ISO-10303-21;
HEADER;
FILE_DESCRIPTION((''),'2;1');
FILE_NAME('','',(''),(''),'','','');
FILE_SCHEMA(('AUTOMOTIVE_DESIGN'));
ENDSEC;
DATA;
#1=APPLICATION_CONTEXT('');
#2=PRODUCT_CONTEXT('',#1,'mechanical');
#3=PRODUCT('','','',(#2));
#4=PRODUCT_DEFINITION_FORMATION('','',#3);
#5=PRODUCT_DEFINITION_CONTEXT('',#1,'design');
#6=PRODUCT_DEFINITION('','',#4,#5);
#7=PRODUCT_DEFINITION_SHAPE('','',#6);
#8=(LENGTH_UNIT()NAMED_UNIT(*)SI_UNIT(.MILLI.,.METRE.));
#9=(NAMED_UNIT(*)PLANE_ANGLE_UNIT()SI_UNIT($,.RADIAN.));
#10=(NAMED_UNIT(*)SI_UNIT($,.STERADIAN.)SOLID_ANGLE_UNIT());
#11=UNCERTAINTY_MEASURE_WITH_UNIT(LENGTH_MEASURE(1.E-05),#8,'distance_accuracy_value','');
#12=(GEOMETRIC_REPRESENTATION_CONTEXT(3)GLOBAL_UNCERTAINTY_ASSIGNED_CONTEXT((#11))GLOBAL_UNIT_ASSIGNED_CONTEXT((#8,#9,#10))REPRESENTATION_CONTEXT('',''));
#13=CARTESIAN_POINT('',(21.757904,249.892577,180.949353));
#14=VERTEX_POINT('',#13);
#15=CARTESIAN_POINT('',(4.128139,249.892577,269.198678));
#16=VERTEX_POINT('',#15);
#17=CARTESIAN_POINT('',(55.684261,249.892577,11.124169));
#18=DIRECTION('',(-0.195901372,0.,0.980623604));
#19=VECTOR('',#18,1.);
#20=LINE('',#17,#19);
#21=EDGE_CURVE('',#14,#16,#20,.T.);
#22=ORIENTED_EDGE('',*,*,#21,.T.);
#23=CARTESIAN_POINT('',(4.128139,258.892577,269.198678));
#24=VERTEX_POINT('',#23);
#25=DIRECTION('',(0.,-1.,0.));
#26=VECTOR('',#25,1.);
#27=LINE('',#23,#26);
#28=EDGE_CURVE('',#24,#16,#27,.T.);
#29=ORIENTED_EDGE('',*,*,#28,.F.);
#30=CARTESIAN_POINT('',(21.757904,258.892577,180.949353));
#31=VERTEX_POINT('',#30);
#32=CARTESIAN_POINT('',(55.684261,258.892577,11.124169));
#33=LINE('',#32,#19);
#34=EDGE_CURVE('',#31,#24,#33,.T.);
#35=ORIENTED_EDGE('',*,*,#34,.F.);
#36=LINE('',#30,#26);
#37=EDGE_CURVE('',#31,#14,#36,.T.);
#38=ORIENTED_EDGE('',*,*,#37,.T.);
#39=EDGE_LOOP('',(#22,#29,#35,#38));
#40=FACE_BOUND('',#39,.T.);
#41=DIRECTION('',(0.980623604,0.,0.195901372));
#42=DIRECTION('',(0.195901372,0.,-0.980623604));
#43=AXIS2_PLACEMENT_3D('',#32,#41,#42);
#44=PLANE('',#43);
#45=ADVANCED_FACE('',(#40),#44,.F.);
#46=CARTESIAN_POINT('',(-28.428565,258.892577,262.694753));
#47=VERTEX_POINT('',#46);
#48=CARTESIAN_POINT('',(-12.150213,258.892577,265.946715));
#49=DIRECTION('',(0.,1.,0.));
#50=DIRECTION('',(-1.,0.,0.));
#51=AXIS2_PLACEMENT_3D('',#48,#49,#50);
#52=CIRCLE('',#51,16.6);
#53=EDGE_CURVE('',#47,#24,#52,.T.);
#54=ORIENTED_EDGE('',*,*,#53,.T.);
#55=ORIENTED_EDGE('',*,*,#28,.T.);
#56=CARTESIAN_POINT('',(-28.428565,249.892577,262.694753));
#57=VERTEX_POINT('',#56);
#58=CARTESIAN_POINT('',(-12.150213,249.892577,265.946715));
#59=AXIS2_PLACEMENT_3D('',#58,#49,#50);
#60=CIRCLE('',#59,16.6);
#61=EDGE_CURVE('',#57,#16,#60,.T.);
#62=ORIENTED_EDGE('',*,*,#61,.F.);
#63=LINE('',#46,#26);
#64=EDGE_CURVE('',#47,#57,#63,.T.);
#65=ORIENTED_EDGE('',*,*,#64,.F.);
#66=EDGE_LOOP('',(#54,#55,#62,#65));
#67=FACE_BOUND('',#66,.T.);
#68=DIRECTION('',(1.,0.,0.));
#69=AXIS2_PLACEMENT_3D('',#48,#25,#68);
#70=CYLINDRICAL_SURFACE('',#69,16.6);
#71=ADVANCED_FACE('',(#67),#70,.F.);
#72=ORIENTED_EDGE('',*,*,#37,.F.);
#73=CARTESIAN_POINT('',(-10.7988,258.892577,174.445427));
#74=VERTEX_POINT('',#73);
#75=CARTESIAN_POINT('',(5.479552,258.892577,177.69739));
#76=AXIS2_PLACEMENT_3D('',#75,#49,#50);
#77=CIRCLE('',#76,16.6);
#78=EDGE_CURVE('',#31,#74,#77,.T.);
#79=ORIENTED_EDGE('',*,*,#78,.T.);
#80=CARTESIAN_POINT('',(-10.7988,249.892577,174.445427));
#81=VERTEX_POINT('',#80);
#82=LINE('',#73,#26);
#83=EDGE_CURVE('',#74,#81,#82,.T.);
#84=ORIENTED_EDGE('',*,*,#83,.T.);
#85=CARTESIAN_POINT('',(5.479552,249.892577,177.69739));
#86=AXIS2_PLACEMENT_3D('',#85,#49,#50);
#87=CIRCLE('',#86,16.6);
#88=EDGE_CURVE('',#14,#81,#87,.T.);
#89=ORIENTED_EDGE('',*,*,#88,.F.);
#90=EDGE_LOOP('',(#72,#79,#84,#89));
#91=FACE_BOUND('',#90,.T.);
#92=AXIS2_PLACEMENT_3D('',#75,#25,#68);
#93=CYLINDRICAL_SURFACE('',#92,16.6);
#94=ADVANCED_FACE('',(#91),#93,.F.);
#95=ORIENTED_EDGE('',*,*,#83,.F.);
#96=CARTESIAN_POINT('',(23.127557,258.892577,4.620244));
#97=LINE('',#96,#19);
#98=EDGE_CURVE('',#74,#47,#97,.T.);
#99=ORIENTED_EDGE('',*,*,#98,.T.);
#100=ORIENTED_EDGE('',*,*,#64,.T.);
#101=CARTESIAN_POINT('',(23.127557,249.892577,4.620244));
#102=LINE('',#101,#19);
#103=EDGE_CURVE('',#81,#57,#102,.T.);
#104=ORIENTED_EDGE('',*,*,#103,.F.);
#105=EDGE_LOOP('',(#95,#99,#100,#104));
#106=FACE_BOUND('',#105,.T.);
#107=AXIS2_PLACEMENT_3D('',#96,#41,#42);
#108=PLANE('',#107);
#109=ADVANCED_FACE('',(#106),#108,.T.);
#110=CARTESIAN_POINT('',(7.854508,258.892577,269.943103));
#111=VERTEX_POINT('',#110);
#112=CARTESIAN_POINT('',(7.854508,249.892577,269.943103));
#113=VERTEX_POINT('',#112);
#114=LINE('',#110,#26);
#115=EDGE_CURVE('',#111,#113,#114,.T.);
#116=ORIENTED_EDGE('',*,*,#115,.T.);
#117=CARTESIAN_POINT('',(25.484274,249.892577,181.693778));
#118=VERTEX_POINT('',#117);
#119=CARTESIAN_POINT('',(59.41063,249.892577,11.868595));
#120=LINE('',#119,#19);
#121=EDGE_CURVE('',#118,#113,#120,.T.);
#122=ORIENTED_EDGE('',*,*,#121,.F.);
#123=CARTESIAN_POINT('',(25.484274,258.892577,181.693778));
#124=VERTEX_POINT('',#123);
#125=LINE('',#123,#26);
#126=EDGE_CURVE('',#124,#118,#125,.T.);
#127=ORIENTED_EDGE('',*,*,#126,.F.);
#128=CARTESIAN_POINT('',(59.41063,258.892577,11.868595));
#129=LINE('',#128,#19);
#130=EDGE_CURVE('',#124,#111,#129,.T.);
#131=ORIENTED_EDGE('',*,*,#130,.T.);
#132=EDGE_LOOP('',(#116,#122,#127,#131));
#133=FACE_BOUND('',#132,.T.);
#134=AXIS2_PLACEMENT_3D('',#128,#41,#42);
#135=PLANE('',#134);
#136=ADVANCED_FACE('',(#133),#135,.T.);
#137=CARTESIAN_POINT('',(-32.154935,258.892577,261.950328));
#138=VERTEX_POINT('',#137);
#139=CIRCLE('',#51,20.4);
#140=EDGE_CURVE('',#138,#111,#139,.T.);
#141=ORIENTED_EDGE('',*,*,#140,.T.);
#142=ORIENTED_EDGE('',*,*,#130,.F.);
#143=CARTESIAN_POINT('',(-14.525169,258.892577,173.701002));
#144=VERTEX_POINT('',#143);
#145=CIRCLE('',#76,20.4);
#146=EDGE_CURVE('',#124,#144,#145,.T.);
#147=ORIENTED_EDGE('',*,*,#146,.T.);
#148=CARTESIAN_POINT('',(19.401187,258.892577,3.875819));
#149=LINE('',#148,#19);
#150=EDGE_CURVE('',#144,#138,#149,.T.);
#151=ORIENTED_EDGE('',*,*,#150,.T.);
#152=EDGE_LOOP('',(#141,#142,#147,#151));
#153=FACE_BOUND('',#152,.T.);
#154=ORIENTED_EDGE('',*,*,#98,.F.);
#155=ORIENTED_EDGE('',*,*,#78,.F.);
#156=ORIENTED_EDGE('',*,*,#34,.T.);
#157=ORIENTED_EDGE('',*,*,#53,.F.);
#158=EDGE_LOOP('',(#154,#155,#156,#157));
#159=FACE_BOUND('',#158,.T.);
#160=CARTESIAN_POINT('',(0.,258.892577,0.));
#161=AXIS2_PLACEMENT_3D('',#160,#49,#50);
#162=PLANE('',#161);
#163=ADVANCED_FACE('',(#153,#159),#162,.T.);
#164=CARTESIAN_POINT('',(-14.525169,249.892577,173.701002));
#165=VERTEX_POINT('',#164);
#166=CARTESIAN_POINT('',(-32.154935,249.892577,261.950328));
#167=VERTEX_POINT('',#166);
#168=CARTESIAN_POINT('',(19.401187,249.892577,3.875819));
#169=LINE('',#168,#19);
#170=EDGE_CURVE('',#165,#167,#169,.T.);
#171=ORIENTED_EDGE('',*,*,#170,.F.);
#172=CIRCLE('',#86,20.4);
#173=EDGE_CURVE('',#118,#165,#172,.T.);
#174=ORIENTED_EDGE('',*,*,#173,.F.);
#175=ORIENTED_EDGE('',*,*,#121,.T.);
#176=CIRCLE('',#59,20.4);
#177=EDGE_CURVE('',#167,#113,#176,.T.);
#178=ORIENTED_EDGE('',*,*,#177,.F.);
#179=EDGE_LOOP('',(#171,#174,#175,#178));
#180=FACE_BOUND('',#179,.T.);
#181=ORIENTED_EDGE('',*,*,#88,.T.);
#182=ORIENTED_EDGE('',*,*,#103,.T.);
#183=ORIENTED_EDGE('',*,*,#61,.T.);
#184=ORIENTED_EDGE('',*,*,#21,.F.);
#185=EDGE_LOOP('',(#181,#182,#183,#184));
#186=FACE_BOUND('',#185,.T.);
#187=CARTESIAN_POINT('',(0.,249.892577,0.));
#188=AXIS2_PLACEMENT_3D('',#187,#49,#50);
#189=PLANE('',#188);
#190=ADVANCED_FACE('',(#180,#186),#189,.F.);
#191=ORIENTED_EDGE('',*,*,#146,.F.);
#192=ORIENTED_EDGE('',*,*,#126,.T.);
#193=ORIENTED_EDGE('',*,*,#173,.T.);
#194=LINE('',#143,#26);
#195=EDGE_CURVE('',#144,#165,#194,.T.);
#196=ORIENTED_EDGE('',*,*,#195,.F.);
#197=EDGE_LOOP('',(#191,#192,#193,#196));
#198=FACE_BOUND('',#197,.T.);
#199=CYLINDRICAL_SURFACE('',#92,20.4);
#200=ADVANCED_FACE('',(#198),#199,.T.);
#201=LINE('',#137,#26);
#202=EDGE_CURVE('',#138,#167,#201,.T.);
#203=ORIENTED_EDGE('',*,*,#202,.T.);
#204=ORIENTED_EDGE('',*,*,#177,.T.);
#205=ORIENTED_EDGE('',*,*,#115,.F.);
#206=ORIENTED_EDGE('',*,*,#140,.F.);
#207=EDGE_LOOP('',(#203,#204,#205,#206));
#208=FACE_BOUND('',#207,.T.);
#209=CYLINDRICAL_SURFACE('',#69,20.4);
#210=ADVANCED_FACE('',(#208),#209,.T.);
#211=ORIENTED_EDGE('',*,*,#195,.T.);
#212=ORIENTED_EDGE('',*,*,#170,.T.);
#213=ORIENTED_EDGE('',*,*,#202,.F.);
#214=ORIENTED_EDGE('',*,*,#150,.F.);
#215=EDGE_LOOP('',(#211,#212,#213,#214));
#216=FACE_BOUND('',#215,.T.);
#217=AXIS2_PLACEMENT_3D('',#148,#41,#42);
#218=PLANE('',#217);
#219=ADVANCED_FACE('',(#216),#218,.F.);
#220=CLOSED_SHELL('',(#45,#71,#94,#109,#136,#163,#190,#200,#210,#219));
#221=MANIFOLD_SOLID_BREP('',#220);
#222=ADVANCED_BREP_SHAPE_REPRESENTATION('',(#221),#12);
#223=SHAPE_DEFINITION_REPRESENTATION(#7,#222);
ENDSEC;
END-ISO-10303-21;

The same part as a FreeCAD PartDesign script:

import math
import FreeCAD as App
import Part
import Sketcher
from FreeCAD import Vector

doc = App.newDocument("Part")
body = doc.addObject("PartDesign::Body", "Body")

sketch1 = doc.addObject("Sketcher::SketchObject", "Sketch")
body.addObject(sketch1)
sketch1.AttachmentSupport = (doc.XZ_Plane, [""])
sketch1.MapMode = "FlatFace"
sketch1.AttachmentOffset = App.Placement(Vector(0, 0, -254.392577), App.Rotation())
sketch1.addGeometry([
    Part.LineSegment(Vector(8, 270, 0), Vector(25, 182, 0)),
    Part.ArcOfCircle(Part.Circle(Vector(5, 178, 0), Vector(0, 0, 1), 20), math.radians(-169), math.radians(11)),
    Part.LineSegment(Vector(-15, 174, 0), Vector(-32, 262, 0)),
    Part.ArcOfCircle(Part.Circle(Vector(-12, 266, 0), Vector(0, 0, 1), 20), math.radians(11), math.radians(191)),
    Part.LineSegment(Vector(22, 181, 0), Vector(4, 269, 0)),
    Part.ArcOfCircle(Part.Circle(Vector(-12, 266, 0), Vector(0, 0, 1), 17), math.radians(11), math.radians(191)),
    Part.LineSegment(Vector(-28, 263, 0), Vector(-11, 174, 0)),
    Part.ArcOfCircle(Part.Circle(Vector(5, 178, 0), Vector(0, 0, 1), 17), math.radians(-169), math.radians(11)),
], False)
sketch1.addConstraint([
    Sketcher.Constraint("Tangent", 0, 2, 1, 2),
    Sketcher.Constraint("Tangent", 1, 1, 2, 1),
    Sketcher.Constraint("Tangent", 2, 2, 3, 2),
    Sketcher.Constraint("Tangent", 3, 1, 0, 1),
    Sketcher.Constraint("Tangent", 4, 2, 5, 1),
    Sketcher.Constraint("Tangent", 5, 2, 6, 1),
    Sketcher.Constraint("Tangent", 6, 2, 7, 1),
    Sketcher.Constraint("Tangent", 7, 2, 4, 1),
    Sketcher.Constraint("Coincident", 5, 3, 3, 3),
    Sketcher.Constraint("Coincident", 7, 3, 1, 3),
    Sketcher.Constraint("Equal", 1, 3),
    Sketcher.Constraint("Equal", 5, 7),
    Sketcher.Constraint("Radius", 1, 20.4),
    Sketcher.Constraint("Radius", 5, 16.6),
    Sketcher.Constraint("DistanceY", -1, 1, 1, 1, 173.701002),
    Sketcher.Constraint("DistanceX", 6, 2, -1, 1, 10.7988),
    Sketcher.Constraint("DistanceY", 0, 2, 4, 2, 87.504901),
    Sketcher.Constraint("DistanceY", -1, 1, 1, 3, 177.69739),
])
pad1 = doc.addObject("PartDesign::Pad", "Pad")
body.addObject(pad1)
pad1.Profile = sketch1
pad1.Length = 9
pad1.Midplane = True

doc.recompute()
